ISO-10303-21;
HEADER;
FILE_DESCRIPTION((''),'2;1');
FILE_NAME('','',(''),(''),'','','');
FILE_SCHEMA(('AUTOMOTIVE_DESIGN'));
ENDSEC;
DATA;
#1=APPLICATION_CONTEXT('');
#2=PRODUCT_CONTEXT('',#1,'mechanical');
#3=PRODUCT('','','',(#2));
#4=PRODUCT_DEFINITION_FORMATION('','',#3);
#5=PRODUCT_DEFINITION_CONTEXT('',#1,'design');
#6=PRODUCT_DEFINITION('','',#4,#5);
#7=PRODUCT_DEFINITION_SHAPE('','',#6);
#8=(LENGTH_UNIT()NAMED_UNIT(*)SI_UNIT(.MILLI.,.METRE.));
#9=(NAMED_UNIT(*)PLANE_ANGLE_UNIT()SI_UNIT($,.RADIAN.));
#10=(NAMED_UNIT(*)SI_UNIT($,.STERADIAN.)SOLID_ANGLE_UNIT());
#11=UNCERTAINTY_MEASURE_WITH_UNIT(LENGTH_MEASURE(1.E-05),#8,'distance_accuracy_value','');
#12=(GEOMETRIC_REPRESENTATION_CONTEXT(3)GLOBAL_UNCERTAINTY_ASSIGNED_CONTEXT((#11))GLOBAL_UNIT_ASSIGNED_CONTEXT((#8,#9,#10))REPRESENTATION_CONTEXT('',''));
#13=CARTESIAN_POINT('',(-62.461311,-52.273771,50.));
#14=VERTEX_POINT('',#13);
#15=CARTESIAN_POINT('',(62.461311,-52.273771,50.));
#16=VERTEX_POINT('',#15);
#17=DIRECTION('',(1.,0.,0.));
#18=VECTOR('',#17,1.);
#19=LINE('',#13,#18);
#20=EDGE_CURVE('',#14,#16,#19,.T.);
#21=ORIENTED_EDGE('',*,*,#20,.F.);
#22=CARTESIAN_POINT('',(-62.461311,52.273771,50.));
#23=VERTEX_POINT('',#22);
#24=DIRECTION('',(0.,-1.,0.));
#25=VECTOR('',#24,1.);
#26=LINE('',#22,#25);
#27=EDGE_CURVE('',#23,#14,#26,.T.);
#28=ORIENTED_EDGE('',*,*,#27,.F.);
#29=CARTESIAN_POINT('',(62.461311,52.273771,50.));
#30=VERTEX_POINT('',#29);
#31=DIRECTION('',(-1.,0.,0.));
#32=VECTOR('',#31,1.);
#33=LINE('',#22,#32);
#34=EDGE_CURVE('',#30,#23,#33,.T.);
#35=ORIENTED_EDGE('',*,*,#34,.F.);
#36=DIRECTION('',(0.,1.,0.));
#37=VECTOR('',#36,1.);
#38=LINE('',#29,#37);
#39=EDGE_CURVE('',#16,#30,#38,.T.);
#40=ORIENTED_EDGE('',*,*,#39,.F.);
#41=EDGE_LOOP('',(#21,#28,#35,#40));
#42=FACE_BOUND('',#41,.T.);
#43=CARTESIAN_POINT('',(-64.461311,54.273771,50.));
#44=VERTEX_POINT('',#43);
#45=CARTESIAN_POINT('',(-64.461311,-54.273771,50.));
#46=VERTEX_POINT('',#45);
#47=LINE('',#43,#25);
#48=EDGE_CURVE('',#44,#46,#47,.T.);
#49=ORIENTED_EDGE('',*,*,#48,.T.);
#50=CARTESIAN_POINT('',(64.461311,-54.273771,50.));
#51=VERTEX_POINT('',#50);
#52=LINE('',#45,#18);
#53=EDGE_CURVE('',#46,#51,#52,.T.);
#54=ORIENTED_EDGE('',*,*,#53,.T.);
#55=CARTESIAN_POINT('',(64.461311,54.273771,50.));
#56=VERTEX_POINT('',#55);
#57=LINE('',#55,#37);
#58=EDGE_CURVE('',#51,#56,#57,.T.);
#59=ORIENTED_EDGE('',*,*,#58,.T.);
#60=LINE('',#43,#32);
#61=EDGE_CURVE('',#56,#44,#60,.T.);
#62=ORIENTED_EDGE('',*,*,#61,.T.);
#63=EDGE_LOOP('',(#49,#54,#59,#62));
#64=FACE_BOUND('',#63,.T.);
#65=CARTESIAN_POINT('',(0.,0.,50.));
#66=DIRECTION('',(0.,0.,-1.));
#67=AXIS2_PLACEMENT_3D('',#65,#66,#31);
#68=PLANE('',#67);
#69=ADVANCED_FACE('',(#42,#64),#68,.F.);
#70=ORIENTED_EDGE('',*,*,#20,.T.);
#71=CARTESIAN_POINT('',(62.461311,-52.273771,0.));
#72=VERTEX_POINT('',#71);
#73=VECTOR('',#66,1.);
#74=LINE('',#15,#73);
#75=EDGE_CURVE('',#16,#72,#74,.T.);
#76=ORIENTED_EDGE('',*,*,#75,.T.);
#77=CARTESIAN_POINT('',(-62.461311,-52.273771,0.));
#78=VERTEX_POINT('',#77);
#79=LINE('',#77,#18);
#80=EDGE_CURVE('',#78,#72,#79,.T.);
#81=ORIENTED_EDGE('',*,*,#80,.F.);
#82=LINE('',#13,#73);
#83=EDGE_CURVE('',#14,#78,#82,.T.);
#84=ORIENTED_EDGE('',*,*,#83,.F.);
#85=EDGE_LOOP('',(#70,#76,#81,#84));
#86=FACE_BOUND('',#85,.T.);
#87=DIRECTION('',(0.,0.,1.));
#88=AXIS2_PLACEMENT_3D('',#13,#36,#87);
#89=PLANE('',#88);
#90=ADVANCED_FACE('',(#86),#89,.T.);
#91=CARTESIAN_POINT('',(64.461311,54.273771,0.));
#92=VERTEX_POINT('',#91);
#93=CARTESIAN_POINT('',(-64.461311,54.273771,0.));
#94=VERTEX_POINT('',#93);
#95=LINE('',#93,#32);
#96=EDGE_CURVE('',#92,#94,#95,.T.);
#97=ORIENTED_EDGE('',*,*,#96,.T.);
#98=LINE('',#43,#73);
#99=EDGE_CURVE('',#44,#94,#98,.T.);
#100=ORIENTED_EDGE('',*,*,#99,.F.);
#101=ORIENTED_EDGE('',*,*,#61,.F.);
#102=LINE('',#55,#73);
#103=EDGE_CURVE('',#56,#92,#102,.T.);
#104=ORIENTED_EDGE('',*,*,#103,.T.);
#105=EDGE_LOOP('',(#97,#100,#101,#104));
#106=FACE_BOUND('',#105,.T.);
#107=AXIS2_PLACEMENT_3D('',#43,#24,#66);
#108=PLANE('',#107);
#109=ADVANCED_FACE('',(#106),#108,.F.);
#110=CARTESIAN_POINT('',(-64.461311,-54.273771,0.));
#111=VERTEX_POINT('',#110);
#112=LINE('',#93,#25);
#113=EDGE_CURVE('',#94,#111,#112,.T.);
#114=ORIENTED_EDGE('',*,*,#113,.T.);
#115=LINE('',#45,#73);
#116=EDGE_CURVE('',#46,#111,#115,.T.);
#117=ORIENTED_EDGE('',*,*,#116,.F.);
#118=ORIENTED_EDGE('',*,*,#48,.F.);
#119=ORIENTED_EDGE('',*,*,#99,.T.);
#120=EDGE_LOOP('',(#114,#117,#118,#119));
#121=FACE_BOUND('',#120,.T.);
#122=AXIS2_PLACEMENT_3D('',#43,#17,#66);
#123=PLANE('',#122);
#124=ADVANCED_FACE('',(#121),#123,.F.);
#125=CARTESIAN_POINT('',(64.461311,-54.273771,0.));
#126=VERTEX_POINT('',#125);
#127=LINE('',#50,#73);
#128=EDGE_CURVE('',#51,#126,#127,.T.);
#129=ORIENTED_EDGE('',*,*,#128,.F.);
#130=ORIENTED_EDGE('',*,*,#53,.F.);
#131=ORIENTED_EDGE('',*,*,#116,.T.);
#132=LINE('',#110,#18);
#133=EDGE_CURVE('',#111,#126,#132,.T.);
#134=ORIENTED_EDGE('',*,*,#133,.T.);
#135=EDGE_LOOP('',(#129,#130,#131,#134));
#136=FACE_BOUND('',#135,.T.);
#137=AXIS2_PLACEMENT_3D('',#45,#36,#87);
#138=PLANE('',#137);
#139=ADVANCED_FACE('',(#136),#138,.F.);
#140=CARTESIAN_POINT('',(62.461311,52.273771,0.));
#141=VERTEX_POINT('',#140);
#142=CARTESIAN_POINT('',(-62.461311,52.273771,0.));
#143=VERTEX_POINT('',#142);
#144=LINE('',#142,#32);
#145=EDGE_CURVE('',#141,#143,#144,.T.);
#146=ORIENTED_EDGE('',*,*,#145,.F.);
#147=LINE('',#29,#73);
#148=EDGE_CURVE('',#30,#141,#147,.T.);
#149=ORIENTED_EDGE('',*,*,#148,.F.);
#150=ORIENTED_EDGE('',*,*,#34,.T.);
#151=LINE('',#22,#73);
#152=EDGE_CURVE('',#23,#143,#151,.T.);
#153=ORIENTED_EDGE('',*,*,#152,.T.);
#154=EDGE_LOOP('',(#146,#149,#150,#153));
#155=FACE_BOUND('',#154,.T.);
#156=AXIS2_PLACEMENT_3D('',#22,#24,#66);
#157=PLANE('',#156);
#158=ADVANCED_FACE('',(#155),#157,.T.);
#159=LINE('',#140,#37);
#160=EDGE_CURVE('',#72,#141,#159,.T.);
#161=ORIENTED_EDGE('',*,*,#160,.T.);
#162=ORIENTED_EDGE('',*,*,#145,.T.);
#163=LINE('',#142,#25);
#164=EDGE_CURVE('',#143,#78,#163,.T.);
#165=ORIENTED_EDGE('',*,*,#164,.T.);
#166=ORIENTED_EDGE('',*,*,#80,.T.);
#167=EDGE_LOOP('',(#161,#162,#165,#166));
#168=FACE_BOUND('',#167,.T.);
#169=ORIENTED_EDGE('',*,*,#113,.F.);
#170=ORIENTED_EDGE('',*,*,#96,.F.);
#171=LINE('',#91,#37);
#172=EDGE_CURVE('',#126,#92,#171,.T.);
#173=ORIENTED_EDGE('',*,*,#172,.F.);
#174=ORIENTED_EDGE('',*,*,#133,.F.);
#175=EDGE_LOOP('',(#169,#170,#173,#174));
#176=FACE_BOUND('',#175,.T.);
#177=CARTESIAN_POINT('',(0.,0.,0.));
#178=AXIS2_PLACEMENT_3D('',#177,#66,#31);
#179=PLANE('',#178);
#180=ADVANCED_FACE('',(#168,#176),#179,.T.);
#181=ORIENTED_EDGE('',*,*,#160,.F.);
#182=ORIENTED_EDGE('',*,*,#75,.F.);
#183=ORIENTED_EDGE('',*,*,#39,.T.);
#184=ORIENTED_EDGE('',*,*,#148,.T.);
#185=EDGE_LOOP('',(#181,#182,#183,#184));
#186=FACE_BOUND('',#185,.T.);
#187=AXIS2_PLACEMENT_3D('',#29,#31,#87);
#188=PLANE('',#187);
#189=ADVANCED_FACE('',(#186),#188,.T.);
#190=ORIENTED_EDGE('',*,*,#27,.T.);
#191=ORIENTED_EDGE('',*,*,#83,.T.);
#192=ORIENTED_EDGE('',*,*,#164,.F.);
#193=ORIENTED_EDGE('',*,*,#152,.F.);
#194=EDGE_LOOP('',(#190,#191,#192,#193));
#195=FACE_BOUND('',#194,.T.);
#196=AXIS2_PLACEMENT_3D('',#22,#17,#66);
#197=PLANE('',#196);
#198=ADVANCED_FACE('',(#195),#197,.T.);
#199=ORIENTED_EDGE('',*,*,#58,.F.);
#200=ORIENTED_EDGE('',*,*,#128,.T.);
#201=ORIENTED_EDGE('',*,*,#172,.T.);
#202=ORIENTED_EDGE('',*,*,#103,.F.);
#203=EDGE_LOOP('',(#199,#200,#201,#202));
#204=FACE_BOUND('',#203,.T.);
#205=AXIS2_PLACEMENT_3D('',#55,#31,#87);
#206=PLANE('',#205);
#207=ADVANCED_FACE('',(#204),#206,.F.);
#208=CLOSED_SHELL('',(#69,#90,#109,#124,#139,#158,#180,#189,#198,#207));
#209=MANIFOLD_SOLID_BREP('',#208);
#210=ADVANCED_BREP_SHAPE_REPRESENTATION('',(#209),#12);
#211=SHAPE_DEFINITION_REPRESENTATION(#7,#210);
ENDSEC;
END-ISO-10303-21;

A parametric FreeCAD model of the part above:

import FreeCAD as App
import Part
import Sketcher
from FreeCAD import Vector

doc = App.newDocument("Part")
body = doc.addObject("PartDesign::Body", "Body")

# Sketch on XY plane
sketch1 = doc.addObject("Sketcher::SketchObject", "Sketch")
body.addObject(sketch1)
sketch1.AttachmentSupport = (doc.XY_Plane, [""])
sketch1.MapMode = "FlatFace"
sketch1.addGeometry(Part.LineSegment(Vector(-64, 54, 0), Vector(-64, -54, 0)), False)
sketch1.addGeometry(Part.LineSegment(Vector(-64, -54, 0), Vector(64, -54, 0)), False)
sketch1.addGeometry(Part.LineSegment(Vector(64, -54, 0), Vector(64, 54, 0)), False)
sketch1.addGeometry(Part.LineSegment(Vector(64, 54, 0), Vector(-64, 54, 0)), False)
sketch1.addGeometry(Part.LineSegment(Vector(62, -52, 0), Vector(-62, -52, 0)), False)
sketch1.addGeometry(Part.LineSegment(Vector(-62, -52, 0), Vector(-62, 52, 0)), False)
sketch1.addGeometry(Part.LineSegment(Vector(-62, 52, 0), Vector(62, 52, 0)), False)
sketch1.addGeometry(Part.LineSegment(Vector(62, 52, 0), Vector(62, -52, 0)), False)
sketch1.addConstraint(Sketcher.Constraint("Coincident", 0, 2, 1, 1))
sketch1.addConstraint(Sketcher.Constraint("Coincident", 1, 2, 2, 1))
sketch1.addConstraint(Sketcher.Constraint("Coincident", 2, 2, 3, 1))
sketch1.addConstraint(Sketcher.Constraint("Coincident", 3, 2, 0, 1))
sketch1.addConstraint(Sketcher.Constraint("Coincident", 4, 2, 5, 1))
sketch1.addConstraint(Sketcher.Constraint("Coincident", 5, 2, 6, 1))
sketch1.addConstraint(Sketcher.Constraint("Coincident", 6, 2, 7, 1))
sketch1.addConstraint(Sketcher.Constraint("Coincident", 7, 2, 4, 1))
sketch1.addConstraint(Sketcher.Constraint("Vertical", 0))
sketch1.addConstraint(Sketcher.Constraint("Horizontal", 1))
sketch1.addConstraint(Sketcher.Constraint("Vertical", 2))
sketch1.addConstraint(Sketcher.Constraint("Horizontal", 3))
sketch1.addConstraint(Sketcher.Constraint("Horizontal", 4))
sketch1.addConstraint(Sketcher.Constraint("Vertical", 5))
sketch1.addConstraint(Sketcher.Constraint("Horizontal", 6))
sketch1.addConstraint(Sketcher.Constraint("Vertical", 7))
sketch1.addConstraint(Sketcher.Constraint("Symmetric", 0, 2, 2, 2, -1, 1))
sketch1.addConstraint(Sketcher.Constraint("Symmetric", 4, 2, 6, 2, -1, 1))
sketch1.addConstraint(Sketcher.Constraint("DistanceX", 0, 2, 4, 2, 2.0))
sketch1.addConstraint(Sketcher.Constraint("DistanceY", 0, 2, 4, 2, 2.0))
sketch1.addConstraint(Sketcher.Constraint("DistanceX", 1, 1, 1, 2, 128.922623))
sketch1.addConstraint(Sketcher.Constraint("DistanceY", 0, 2, 0, 1, 108.547543))
pad1 = doc.addObject("PartDesign::Pad", "Pad")
body.addObject(pad1)
pad1.Profile = sketch1
pad1.Length = 50
body2 = doc.addObject("PartDesign::Body", "Body001")

# Sketch on XY plane
sketch2 = doc.addObject("Sketcher::SketchObject", "Sketch001")
body2.addObject(sketch2)
sketch2.AttachmentSupport = (doc.getObject("XY_Plane001"), [""])
sketch2.MapMode = "FlatFace"
sketch2.addGeometry(Part.Circle(Vector(0, 0, 0), Vector(0, 0, 1), 48), False)
sketch2.addConstraint(Sketcher.Constraint("Coincident", 0, 3, -1, 1))
sketch2.addConstraint(Sketcher.Constraint("Diameter", 0, 96.993141))
pad2 = doc.addObject("PartDesign::Pad", "Pad001")
body2.addObject(pad2)
pad2.Profile = sketch2
pad2.Length = 50
body3 = doc.addObject("PartDesign::Body", "Body002")

# Sketch on XY plane
sketch3 = doc.addObject("Sketcher::SketchObject", "Sketch002")
body3.addObject(sketch3)
sketch3.AttachmentSupport = (doc.getObject("XY_Plane002"), [""])
sketch3.MapMode = "FlatFace"
sketch3.addGeometry(Part.Circle(Vector(-51, 42, 0), Vector(0, 0, 1), 7), False)
sketch3.addConstraint(Sketcher.Constraint("Diameter", 0, 13.988221))
sketch3.addConstraint(Sketcher.Constraint("DistanceX", 0, 3, -1, 1, 51.126363))
sketch3.addConstraint(Sketcher.Constraint("DistanceY", -1, 1, 0, 3, 41.516846))
pad3 = doc.addObject("PartDesign::Pad", "Pad002")
body3.addObject(pad3)
pad3.Profile = sketch3
pad3.Length = 20
body4 = doc.addObject("PartDesign::Body", "Body003")

# Sketch on XY plane
sketch4 = doc.addObject("Sketcher::SketchObject", "Sketch003")
body4.addObject(sketch4)
sketch4.AttachmentSupport = (doc.getObject("XY_Plane003"), [""])
sketch4.MapMode = "FlatFace"
sketch4.addGeometry(Part.Circle(Vector(46, 44, 0), Vector(0, 0, 1), 6), False)
sketch4.addConstraint(Sketcher.Constraint("Diameter", 0, 12.241382))
sketch4.addConstraint(Sketcher.Constraint("DistanceX", -1, 1, 0, 3, 46.461549))
sketch4.addConstraint(Sketcher.Constraint("DistanceY", -1, 1, 0, 3, 43.755957))
pad4 = doc.addObject("PartDesign::Pad", "Pad003")
body4.addObject(pad4)
pad4.Profile = sketch4
pad4.Length = 20
body2.Visibility = False
body3.Visibility = False
body4.Visibility = False

doc.recompute()
